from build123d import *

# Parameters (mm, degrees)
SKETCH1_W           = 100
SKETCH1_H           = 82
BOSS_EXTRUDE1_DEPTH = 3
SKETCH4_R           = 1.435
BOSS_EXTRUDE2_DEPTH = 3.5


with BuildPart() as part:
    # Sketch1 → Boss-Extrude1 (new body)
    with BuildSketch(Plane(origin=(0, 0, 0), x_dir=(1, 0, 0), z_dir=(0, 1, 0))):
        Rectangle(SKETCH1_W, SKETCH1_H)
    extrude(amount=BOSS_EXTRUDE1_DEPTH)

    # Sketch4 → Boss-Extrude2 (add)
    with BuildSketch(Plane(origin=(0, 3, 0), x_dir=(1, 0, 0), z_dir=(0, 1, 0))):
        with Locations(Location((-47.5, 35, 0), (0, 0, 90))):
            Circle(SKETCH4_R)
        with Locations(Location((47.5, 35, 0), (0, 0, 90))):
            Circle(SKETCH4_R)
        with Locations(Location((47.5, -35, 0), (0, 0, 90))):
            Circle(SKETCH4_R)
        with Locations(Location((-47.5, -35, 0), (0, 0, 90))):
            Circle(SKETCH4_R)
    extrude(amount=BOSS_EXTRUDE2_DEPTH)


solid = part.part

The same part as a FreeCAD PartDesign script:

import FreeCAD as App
import Part
import Sketcher
Q = App.Units.Quantity


def add_polygon(sketch, points):
    """Adds a closed chain of lines whose ends are joined by coincident constraints."""
    first, n = sketch.GeometryCount, len(points)
    for a, b in zip(points, points[1:] + points[:1]):
        sketch.addGeometry(Part.LineSegment(App.Vector(*a, 0), App.Vector(*b, 0)), False)
    for i in range(n):
        sketch.addConstraint(Sketcher.Constraint("Coincident", first + i, 2, first + (i + 1) % n, 1))

doc = App.newDocument("Part")
params = doc.addObject("Spreadsheet::Sheet", "Params")
for row, (alias, value) in enumerate([
    ("sketch1_width", "100 mm"),
    ("sketch1_height", "82 mm"),
    ("pad1_length", "3 mm"),
    ("sketch2_diameter", "2.87 mm"),
    ("pad2_length", "3.5 mm"),
], start=1):
    params.set(f"A{row}", alias)
    params.set(f"B{row}", "=" + value)
    params.setAlias(f"B{row}", alias)

body = doc.addObject("PartDesign::Body", "Body")

# Sketch on XZ plane
sketch1 = body.newObject("Sketcher::SketchObject", "Sketch")
sketch1.AttachmentSupport = (doc.getObject("XZ_Plane"), [""])
sketch1.MapMode = "FlatFace"
add_polygon(sketch1, [(-50, -41), (-50, 41), (50, 41), (50, -41)])  # lines 0-3
sketch1.addConstraint([
    Sketcher.Constraint("Vertical", 0),
    Sketcher.Constraint("Horizontal", 1),
    Sketcher.Constraint("Vertical", 2),
    Sketcher.Constraint("Horizontal", 3),
    Sketcher.Constraint("Symmetric", 0, 2, 2, 2, -1, 1),
    Sketcher.Constraint("DistanceX", 1, 1, 1, 2, Q("100 mm")),
    Sketcher.Constraint("DistanceY", 0, 1, 0, 2, Q("82 mm")),
])
sketch1.setExpression("Constraints[9]", "Params.sketch1_width")
sketch1.setExpression("Constraints[10]", "Params.sketch1_height")
pad1 = body.newObject("PartDesign::Pad", "Pad")
pad1.Profile = sketch1
pad1.setExpression("Length", "Params.pad1_length")
pad1.Reversed = True

# Sketch on XZ plane
sketch2 = body.newObject("Sketcher::SketchObject", "Sketch001")
sketch2.AttachmentSupport = (doc.getObject("XZ_Plane"), [""])
sketch2.MapMode = "FlatFace"
sketch2.AttachmentOffset = App.Placement(App.Vector(0, 0, -3), App.Rotation())
sketch2.addGeometry([
    Part.Circle(App.Vector(-47.5, -35, 0), App.Vector(0, 0, 1), 1.4),
    Part.Circle(App.Vector(47.5, -35, 0), App.Vector(0, 0, 1), 1.4),
    Part.Circle(App.Vector(47.5, 35, 0), App.Vector(0, 0, 1), 1.4),
    Part.Circle(App.Vector(-47.5, 35, 0), App.Vector(0, 0, 1), 1.4),
], False)
sketch2.addConstraint([
    Sketcher.Constraint("Equal", 0, 1),
    Sketcher.Constraint("Equal", 1, 2),
    Sketcher.Constraint("Equal", 2, 3),
    Sketcher.Constraint("Symmetric", 0, 3, 2, 3, -1, 1),
    Sketcher.Constraint("Symmetric", 1, 3, 3, 3, -1, 1),
    Sketcher.Constraint("Symmetric", 0, 3, 1, 3, -2),
    Sketcher.Constraint("Diameter", 0, Q("2.87 mm")),
    Sketcher.Constraint("DistanceY", 0, 3, -1, 1, Q("35 mm")),
    Sketcher.Constraint("DistanceX", 0, 3, 1, 3, Q("95 mm")),
])
sketch2.setExpression("Constraints[6]", "Params.sketch2_diameter")
pad2 = body.newObject("PartDesign::Pad", "Pad001")
pad2.Profile = sketch2
pad2.setExpression("Length", "Params.pad2_length")
pad2.Reversed = True

doc.recompute()
